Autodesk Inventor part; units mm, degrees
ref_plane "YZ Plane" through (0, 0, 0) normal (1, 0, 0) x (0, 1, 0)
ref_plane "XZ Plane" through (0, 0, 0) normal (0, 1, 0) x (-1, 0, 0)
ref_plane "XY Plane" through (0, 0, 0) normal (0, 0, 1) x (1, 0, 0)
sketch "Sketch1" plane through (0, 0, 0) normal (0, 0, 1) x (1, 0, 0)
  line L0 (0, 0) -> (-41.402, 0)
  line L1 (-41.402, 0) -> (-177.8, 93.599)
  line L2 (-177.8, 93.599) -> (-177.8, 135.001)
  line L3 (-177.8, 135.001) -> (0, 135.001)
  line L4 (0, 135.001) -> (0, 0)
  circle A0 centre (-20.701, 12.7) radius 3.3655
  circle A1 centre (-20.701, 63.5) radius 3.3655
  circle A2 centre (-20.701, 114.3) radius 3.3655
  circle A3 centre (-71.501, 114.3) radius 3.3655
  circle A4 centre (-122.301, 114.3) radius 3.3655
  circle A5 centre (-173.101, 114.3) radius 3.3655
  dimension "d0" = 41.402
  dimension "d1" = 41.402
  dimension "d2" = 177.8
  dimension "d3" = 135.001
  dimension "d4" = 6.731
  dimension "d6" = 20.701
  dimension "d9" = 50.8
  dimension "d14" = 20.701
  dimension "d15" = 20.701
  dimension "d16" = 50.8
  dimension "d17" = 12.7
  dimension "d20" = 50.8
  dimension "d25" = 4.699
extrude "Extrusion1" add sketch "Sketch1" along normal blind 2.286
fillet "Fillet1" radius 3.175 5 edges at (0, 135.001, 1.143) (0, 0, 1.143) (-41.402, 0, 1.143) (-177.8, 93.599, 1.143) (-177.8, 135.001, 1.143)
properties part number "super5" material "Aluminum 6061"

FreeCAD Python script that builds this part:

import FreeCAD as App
import Part
import Sketcher
Q = App.Units.Quantity


def edges_at(feature, points):
    """Names of the edges that pass closest to the given points."""
    edges = feature.Shape.Edges
    near = lambda p: min(range(len(edges)), key=lambda i: edges[i].distToShape(Part.Vertex(*p))[0])
    return sorted({f"Edge{near(p) + 1}" for p in points})


def add_polygon(sketch, points):
    """Adds a closed chain of lines whose ends are joined by coincident constraints."""
    first, n = sketch.GeometryCount, len(points)
    for a, b in zip(points, points[1:] + points[:1]):
        sketch.addGeometry(Part.LineSegment(App.Vector(*a, 0), App.Vector(*b, 0)), False)
    for i in range(n):
        sketch.addConstraint(Sketcher.Constraint("Coincident", first + i, 2, first + (i + 1) % n, 1))

doc = App.newDocument("Part")
body = doc.addObject("PartDesign::Body", "Body")

sketch1 = body.newObject("Sketcher::SketchObject", "Sketch")
sketch1.AttachmentSupport = (doc.getObject("XY_Plane"), [""])
sketch1.MapMode = "FlatFace"
add_polygon(sketch1, [(-41.4, 0), (0, 0), (0, 135), (-177.8, 135), (-177.8, 93.6)])
sketch1.addGeometry(Part.Circle(App.Vector(-20.7, 12.7, 0), App.Vector(0, 0, 1), 3.4), False)
sketch1.addGeometry(Part.Circle(App.Vector(-20.7, 63.5, 0), App.Vector(0, 0, 1), 3.4), False)
sketch1.addGeometry(Part.Circle(App.Vector(-173.1, 114.3, 0), App.Vector(0, 0, 1), 3.4), False)
sketch1.addGeometry(Part.Circle(App.Vector(-122.3, 114.3, 0), App.Vector(0, 0, 1), 3.4), False)
sketch1.addGeometry(Part.Circle(App.Vector(-71.5, 114.3, 0), App.Vector(0, 0, 1), 3.4), False)
sketch1.addGeometry(Part.Circle(App.Vector(-20.7, 114.3, 0), App.Vector(0, 0, 1), 3.4), False)
sketch1.addConstraint(Sketcher.Constraint("Horizontal", 0))
sketch1.addConstraint(Sketcher.Constraint("Vertical", 1))
sketch1.addConstraint(Sketcher.Constraint("Horizontal", 2))
sketch1.addConstraint(Sketcher.Constraint("Vertical", 3))
sketch1.addConstraint(Sketcher.Constraint("Coincident", 0, 2, -1, 1))
sketch1.addConstraint(Sketcher.Constraint("Equal", 5, 6))
sketch1.addConstraint(Sketcher.Constraint("Equal", 6, 7))
sketch1.addConstraint(Sketcher.Constraint("Equal", 7, 8))
sketch1.addConstraint(Sketcher.Constraint("Equal", 8, 9))
sketch1.addConstraint(Sketcher.Constraint("Equal", 9, 10))
sketch1.addConstraint(Sketcher.Constraint("Horizontal", 7, 3, 8, 3))
sketch1.addConstraint(Sketcher.Constraint("Horizontal", 8, 3, 9, 3))
sketch1.addConstraint(Sketcher.Constraint("Horizontal", 9, 3, 10, 3))
sketch1.addConstraint(Sketcher.Constraint("Vertical", 5, 3, 6, 3))
sketch1.addConstraint(Sketcher.Constraint("Vertical", 6, 3, 10, 3))
sketch1.addConstraint(Sketcher.Constraint("Equal", 0, 3))
sketch1.addConstraint(Sketcher.Constraint("DistanceX", 2, 2, 2, 1, Q("7 in")))
sketch1.addConstraint(Sketcher.Constraint("Diameter", 5, Q("0.265 in")))
sketch1.addConstraint(Sketcher.Constraint("DistanceY", 5, 3, 6, 3, Q("2 in")))
sketch1.addConstraint(Sketcher.Constraint("DistanceY", 6, 3, 7, 3, Q("2 in")))
sketch1.addConstraint(Sketcher.Constraint("DistanceX", 7, 3, 8, 3, Q("2 in")))
sketch1.addConstraint(Sketcher.Constraint("DistanceX", 8, 3, 9, 3, Q("2 in")))
sketch1.addConstraint(Sketcher.Constraint("DistanceX", 9, 3, 6, 3, Q("2 in")))
sketch1.addConstraint(Sketcher.Constraint("DistanceX", 0, 1, 0, 2, Q("1.63 in")))
sketch1.addConstraint(Sketcher.Constraint("DistanceY", -1, 1, 5, 3, Q("0.5 in")))
sketch1.addConstraint(Sketcher.Constraint("DistanceY", 1, 1, 1, 2, Q("5.315 in")))
sketch1.addConstraint(Sketcher.Constraint("DistanceX", 5, 3, -1, 1, Q("0.815 in")))
pad1 = body.newObject("PartDesign::Pad", "Pad")
pad1.Profile = sketch1
pad1.Length = Q("0.09 in")
doc.recompute()

fillet = body.newObject("PartDesign::Fillet", "Fillet")
fillet.Base = (pad1, edges_at(pad1, [
    (0, 135.001, 1.143),
    (0, 0, 1.143),
    (-41.402, 0, 1.143),
    (-177.8, 93.599, 1.143),
    (-177.8, 135.001, 1.143),
]))
fillet.Radius = Q("0.125 in")

doc.recompute()
